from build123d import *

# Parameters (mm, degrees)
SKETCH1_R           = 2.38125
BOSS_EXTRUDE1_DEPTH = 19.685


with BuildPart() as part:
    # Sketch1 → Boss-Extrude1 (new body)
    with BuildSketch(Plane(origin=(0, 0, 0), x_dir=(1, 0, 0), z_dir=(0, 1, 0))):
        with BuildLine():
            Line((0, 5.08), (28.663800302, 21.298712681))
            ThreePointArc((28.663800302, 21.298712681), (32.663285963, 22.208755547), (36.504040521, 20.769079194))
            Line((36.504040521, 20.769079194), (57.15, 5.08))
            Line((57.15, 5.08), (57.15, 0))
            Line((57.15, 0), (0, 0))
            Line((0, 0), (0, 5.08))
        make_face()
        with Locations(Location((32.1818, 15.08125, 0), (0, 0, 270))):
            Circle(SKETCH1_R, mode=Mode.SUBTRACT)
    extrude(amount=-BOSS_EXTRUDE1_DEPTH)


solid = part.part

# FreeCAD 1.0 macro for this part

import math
import FreeCAD as App
import Part
import Sketcher

V = App.Vector
Q = App.Units.Quantity

doc = App.newDocument("Part")
params = doc.addObject("Spreadsheet::Sheet", "Params")
for row, (alias, value) in enumerate([
    ("sketch1_diameter", "0.1875 in"),
    ("sketch1_height", "0.2 in"),
    ("sketch1_radius", "0.28125 in"),
    ("sketch1_width", "2.25 in"),
    ("pad1_length", "0.775 in"),
], start=1):
    params.set(f"A{row}", alias)
    params.set(f"B{row}", "=" + value)
    params.setAlias(f"B{row}", alias)

body = doc.addObject("PartDesign::Body", "Body")

# Sketch on XZ plane
sketch1 = body.newObject("Sketcher::SketchObject", "Sketch")
sketch1.AttachmentSupport = (doc.getObject("XZ_Plane"), [""])
sketch1.MapMode = "FlatFace"
sketch1.addGeometry(Part.LineSegment(V(28.7, -21.3, 0), V(0, -5.1, 0)), False)
sketch1.addGeometry(Part.LineSegment(V(0, -5.1, 0), V(0, 0, 0)), False)
sketch1.addGeometry(Part.LineSegment(V(0, 0, 0), V(57.1, 0, 0)), False)
sketch1.addGeometry(Part.LineSegment(V(57.1, 0, 0), V(57.1, -5.1, 0)), False)
sketch1.addGeometry(Part.LineSegment(V(57.1, -5.1, 0), V(36.5, -20.8, 0)), False)
sketch1.addGeometry(Part.ArcOfCircle(Part.Circle(V(32.2, -15.1, 0), V(0, 0, 1), 7.1), math.radians(-120), math.radians(-53)), False)
sketch1.addGeometry(Part.Circle(V(32.2, -15.1, 0), V(0, 0, 1), 2.4), False)
sketch1.addConstraint(Sketcher.Constraint("Coincident", 0, 2, 1, 1))
sketch1.addConstraint(Sketcher.Constraint("Coincident", 1, 2, 2, 1))
sketch1.addConstraint(Sketcher.Constraint("Coincident", 2, 2, 3, 1))
sketch1.addConstraint(Sketcher.Constraint("Coincident", 3, 2, 4, 1))
sketch1.addConstraint(Sketcher.Constraint("Tangent", 4, 2, 5, 2))
sketch1.addConstraint(Sketcher.Constraint("Tangent", 5, 1, 0, 1))
sketch1.addConstraint(Sketcher.Constraint("Vertical", 1))
sketch1.addConstraint(Sketcher.Constraint("Horizontal", 2))
sketch1.addConstraint(Sketcher.Constraint("Vertical", 3))
sketch1.addConstraint(Sketcher.Constraint("Coincident", 1, 2, -1, 1))
sketch1.addConstraint(Sketcher.Constraint("Coincident", 6, 3, 5, 3))
sketch1.addConstraint(Sketcher.Constraint("Horizontal", 0, 2, 3, 2))
sketch1.addConstraint(Sketcher.Constraint("Diameter", 6, Q("0.1875 in")))
sketch1.addConstraint(Sketcher.Constraint("DistanceY", 1, 1, 1, 2, Q("0.2 in")))
sketch1.addConstraint(Sketcher.Constraint("Radius", 5, Q("0.28125 in")))
sketch1.addConstraint(Sketcher.Constraint("DistanceX", 2, 1, 2, 2, Q("2.25 in")))
sketch1.addConstraint(Sketcher.Constraint("DistanceX", -1, 1, 5, 3, Q("1.267 in")))
sketch1.addConstraint(Sketcher.Constraint("DistanceY", 5, 3, -1, 1, Q("0.59375 in")))
sketch1.setExpression("Constraints[12]", "Params.sketch1_diameter")
sketch1.setExpression("Constraints[13]", "Params.sketch1_height")
sketch1.setExpression("Constraints[14]", "Params.sketch1_radius")
sketch1.setExpression("Constraints[15]", "Params.sketch1_width")
pad1 = body.newObject("PartDesign::Pad", "Pad")
pad1.Profile = sketch1
pad1.setExpression("Length", "Params.pad1_length")

doc.recompute()
